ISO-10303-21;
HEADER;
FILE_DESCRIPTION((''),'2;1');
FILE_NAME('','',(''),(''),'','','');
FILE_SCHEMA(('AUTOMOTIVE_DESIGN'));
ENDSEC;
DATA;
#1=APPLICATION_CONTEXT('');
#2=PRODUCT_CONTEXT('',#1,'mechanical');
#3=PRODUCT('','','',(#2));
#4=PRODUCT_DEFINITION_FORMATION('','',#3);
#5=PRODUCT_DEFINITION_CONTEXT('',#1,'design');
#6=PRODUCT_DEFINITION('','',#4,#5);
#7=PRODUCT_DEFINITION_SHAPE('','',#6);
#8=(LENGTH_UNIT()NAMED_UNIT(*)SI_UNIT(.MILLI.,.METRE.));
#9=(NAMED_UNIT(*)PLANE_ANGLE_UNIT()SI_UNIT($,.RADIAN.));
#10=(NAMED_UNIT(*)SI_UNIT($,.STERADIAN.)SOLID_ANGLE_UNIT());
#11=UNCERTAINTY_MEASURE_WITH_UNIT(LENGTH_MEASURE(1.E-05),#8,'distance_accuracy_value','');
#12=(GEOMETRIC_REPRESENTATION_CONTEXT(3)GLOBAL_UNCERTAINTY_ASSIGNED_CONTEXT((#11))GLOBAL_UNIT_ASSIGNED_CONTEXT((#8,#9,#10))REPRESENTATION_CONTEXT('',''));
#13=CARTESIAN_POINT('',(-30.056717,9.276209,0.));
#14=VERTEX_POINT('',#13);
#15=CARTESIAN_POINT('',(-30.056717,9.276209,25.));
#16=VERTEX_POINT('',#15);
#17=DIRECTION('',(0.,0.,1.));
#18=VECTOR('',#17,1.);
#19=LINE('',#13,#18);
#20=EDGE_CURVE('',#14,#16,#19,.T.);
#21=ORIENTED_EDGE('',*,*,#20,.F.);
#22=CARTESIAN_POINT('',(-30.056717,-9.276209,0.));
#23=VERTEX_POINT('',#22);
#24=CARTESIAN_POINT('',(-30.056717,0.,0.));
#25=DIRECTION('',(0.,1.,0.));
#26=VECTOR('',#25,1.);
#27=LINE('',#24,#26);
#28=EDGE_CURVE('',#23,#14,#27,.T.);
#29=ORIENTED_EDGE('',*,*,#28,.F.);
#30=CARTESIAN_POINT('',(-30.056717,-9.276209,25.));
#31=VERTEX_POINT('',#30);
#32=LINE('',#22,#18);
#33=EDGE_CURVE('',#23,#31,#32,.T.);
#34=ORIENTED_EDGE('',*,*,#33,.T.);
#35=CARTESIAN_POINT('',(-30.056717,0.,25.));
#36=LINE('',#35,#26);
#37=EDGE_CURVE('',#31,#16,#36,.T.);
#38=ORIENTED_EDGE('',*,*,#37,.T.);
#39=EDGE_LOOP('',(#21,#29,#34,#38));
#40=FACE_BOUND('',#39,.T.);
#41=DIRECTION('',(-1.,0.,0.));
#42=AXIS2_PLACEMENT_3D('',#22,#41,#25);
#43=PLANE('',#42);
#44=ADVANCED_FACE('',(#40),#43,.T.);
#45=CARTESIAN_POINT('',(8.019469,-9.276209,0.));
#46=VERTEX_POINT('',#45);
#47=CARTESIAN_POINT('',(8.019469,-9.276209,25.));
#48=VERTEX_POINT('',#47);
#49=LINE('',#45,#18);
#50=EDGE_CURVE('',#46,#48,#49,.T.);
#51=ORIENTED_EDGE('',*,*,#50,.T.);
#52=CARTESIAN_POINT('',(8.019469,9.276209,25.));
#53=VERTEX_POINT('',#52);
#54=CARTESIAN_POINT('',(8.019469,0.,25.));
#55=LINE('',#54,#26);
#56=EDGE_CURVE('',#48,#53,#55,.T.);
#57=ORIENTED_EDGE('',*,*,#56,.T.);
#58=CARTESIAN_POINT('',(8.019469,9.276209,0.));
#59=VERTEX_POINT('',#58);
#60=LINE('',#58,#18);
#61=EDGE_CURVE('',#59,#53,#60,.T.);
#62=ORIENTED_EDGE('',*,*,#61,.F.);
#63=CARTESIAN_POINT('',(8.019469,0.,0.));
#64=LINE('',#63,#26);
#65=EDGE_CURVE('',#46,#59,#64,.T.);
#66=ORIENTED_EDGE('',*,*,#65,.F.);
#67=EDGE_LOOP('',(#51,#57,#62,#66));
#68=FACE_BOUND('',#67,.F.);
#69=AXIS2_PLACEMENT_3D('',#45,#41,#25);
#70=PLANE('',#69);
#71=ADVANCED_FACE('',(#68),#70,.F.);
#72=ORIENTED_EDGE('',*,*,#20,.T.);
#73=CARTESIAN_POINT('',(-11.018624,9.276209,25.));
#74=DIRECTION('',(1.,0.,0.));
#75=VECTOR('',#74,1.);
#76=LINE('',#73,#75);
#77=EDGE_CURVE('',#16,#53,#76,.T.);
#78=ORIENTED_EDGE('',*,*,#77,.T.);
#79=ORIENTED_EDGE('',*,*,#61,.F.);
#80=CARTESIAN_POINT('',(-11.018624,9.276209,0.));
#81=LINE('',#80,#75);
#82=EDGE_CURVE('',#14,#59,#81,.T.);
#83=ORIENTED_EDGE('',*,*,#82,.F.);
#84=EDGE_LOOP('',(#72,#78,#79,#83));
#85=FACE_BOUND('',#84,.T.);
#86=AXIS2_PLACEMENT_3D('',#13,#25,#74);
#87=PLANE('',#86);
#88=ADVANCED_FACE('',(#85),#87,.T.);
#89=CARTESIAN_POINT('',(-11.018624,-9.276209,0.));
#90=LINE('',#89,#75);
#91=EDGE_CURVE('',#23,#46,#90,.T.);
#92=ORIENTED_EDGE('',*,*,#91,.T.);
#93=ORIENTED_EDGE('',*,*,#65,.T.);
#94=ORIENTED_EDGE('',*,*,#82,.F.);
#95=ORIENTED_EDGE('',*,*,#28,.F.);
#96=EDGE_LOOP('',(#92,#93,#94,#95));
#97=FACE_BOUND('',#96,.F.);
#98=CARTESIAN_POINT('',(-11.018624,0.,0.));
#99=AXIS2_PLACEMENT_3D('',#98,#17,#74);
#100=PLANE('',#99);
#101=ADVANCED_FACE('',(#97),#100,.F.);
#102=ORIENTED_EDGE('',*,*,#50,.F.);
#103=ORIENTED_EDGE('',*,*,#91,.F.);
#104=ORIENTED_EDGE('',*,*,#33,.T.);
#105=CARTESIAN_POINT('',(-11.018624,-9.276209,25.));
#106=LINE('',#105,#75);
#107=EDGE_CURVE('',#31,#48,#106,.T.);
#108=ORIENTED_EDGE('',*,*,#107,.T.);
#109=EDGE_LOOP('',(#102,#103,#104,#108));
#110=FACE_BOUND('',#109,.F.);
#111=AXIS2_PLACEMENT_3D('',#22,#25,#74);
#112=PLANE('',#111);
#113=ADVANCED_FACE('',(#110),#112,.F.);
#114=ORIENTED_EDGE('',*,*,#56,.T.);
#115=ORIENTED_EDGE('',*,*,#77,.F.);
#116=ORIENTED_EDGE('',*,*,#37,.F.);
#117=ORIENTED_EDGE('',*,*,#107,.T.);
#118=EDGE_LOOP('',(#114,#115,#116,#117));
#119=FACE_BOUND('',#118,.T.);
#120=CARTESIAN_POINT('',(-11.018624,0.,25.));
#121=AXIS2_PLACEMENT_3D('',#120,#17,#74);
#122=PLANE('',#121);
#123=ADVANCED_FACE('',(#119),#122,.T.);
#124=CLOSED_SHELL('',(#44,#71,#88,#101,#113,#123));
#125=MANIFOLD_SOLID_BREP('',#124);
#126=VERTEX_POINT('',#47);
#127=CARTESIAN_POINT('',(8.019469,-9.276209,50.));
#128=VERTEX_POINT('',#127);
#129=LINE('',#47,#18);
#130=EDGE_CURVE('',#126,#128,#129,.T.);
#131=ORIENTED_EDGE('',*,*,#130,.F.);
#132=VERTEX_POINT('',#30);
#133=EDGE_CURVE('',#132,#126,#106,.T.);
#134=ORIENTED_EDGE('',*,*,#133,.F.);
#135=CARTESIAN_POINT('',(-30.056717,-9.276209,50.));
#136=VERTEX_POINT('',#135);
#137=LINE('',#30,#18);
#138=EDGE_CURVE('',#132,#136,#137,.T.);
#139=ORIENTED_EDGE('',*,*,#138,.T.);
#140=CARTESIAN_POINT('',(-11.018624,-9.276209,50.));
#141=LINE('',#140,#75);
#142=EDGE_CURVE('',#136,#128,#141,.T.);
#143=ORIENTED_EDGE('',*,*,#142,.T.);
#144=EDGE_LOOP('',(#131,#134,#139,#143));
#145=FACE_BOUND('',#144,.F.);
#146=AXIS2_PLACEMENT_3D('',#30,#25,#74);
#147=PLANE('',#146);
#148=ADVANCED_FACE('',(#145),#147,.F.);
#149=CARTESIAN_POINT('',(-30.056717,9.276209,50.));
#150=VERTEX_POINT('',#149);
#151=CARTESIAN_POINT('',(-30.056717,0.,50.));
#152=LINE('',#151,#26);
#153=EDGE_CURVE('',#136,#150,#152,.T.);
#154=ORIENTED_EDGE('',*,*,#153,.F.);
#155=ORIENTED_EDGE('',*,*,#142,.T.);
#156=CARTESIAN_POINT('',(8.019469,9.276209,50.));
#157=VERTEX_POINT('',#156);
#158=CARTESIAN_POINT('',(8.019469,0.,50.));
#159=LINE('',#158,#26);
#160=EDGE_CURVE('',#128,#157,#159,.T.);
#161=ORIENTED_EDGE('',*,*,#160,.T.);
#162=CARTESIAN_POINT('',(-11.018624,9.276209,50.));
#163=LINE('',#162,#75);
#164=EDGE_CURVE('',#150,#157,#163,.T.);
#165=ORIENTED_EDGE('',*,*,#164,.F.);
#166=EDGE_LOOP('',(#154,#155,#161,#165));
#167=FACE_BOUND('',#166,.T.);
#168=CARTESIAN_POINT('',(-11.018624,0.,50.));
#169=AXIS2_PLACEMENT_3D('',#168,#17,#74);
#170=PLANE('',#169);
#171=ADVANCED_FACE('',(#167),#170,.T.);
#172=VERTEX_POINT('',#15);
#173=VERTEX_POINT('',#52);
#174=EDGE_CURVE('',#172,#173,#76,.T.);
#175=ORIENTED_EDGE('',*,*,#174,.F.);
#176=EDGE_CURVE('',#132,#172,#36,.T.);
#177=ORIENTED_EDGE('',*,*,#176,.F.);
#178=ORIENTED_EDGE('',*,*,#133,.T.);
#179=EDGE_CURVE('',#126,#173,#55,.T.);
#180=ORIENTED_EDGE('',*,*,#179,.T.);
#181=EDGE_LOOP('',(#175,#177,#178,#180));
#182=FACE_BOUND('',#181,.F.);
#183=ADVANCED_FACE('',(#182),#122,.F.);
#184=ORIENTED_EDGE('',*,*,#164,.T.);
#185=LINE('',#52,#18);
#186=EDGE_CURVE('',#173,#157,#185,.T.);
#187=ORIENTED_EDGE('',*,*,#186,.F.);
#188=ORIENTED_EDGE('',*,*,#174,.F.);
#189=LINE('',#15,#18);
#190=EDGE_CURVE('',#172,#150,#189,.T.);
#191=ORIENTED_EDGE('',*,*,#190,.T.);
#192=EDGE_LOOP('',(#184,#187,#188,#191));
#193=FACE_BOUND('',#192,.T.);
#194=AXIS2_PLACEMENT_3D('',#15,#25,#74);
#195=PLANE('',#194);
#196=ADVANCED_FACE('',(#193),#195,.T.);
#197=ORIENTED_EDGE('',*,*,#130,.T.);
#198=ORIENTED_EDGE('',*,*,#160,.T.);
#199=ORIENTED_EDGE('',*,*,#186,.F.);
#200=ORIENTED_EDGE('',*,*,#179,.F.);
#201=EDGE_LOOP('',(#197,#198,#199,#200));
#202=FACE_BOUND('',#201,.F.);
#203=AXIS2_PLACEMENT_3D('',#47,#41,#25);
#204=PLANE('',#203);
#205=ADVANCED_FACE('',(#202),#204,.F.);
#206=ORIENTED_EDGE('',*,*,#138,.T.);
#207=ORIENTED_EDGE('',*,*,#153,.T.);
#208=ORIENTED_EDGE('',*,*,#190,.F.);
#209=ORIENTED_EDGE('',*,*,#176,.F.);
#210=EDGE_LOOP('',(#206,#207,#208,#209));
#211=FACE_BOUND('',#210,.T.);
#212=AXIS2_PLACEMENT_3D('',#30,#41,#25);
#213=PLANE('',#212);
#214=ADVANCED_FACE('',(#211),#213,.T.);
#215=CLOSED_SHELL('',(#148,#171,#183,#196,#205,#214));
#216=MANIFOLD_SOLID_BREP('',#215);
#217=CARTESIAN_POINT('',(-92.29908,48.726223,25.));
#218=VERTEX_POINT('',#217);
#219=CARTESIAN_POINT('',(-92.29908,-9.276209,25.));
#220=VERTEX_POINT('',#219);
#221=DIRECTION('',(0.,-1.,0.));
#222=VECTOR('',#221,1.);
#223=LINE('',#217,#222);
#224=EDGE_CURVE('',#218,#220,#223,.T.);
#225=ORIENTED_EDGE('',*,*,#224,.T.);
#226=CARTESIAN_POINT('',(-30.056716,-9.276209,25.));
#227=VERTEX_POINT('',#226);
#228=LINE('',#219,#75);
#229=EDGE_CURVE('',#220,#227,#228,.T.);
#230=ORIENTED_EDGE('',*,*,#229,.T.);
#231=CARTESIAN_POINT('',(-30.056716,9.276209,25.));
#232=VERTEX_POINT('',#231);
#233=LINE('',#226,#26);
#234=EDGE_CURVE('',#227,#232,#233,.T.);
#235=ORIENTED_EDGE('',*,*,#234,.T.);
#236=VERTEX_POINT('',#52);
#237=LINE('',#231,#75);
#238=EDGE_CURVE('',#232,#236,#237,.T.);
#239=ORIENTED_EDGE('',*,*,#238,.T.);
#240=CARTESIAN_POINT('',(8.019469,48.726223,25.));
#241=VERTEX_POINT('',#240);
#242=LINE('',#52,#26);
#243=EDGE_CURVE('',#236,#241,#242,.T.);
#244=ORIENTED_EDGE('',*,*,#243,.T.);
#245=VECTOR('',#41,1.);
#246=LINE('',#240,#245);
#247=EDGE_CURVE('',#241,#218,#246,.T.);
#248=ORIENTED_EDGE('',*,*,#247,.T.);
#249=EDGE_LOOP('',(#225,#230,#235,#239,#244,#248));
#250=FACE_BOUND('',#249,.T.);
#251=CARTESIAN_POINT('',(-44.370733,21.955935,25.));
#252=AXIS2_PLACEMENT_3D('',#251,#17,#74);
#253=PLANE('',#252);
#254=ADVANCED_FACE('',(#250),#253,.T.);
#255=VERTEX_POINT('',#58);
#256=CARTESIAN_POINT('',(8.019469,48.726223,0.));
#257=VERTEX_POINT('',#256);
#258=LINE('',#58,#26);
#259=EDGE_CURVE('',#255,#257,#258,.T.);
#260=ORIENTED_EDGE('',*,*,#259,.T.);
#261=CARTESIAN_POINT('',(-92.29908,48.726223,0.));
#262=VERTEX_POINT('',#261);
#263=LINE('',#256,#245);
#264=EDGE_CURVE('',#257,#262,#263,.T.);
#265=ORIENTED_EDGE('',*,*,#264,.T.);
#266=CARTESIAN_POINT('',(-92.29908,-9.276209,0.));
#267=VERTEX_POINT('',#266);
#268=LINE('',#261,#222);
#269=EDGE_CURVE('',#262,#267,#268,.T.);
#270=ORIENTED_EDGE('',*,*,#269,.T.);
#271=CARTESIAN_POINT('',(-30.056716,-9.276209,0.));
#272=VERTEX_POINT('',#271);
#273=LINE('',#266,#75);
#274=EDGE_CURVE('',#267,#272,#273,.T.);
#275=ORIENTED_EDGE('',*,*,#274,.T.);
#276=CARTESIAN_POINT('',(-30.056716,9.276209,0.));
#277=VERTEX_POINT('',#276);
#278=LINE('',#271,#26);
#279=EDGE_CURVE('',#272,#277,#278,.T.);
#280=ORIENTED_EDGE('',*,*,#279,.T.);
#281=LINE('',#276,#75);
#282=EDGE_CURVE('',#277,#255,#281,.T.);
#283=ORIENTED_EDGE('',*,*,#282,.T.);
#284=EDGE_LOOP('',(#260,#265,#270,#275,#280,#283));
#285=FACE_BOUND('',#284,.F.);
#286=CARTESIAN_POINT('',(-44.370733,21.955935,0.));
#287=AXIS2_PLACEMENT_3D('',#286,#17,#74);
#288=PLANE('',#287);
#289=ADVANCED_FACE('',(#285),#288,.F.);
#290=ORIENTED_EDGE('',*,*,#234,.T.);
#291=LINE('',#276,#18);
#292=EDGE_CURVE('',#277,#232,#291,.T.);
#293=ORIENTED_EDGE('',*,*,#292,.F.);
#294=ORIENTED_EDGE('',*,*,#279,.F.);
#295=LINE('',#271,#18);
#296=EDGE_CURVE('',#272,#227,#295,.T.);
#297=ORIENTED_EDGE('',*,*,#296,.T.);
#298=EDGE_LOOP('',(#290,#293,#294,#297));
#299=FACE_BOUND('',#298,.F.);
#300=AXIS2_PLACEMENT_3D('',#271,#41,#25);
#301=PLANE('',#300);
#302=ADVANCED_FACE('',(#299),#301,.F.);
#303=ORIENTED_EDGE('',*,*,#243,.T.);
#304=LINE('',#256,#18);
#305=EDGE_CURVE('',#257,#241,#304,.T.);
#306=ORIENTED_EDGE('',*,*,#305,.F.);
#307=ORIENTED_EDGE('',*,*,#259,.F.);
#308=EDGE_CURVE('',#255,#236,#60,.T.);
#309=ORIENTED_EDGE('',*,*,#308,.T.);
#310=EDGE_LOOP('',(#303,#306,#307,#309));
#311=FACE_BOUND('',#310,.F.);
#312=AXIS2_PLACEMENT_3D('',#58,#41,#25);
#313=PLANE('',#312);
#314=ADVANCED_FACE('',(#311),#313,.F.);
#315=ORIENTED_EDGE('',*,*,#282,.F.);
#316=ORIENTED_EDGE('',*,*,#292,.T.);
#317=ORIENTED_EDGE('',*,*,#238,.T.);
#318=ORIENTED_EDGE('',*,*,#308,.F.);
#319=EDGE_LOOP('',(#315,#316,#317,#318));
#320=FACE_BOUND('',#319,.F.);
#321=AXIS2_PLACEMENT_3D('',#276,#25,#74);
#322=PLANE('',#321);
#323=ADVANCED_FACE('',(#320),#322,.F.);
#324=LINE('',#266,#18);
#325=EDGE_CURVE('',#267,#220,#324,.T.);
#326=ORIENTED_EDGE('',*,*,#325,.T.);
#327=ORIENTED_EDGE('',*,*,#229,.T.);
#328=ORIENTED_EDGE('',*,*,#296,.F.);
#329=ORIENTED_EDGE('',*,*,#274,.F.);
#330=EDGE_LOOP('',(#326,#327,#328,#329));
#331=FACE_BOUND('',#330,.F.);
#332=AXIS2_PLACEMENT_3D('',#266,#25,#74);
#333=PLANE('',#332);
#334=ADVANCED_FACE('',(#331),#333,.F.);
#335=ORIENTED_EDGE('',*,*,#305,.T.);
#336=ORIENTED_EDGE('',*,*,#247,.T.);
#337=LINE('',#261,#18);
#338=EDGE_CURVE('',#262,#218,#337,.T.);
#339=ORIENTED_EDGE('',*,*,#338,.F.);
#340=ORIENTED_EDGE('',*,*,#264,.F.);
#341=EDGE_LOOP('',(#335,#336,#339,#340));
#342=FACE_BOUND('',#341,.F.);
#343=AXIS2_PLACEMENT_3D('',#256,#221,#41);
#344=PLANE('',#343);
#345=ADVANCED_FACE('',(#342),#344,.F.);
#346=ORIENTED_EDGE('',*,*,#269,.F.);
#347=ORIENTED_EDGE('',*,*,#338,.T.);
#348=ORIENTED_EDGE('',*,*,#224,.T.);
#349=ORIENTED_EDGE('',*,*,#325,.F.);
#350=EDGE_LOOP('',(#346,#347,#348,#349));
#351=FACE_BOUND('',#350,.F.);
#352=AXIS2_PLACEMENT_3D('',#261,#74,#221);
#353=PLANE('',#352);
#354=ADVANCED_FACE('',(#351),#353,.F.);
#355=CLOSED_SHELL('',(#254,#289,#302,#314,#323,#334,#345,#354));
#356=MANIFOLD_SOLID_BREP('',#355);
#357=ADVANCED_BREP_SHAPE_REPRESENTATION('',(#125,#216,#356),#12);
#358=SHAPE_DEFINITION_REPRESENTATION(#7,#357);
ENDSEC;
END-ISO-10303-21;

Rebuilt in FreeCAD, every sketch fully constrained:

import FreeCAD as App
import Part
import Sketcher
from FreeCAD import Vector


def add_polygon(sketch, points):
    """Adds a closed chain of lines whose ends are joined by coincident constraints."""
    first, n = sketch.GeometryCount, len(points)
    for a, b in zip(points, points[1:] + points[:1]):
        sketch.addGeometry(Part.LineSegment(App.Vector(*a, 0), App.Vector(*b, 0)), False)
    for i in range(n):
        sketch.addConstraint(Sketcher.Constraint("Coincident", first + i, 2, first + (i + 1) % n, 1))

doc = App.newDocument("Part")
body = doc.addObject("PartDesign::Body", "Body")

# Sketch on XY plane
sketch1 = doc.addObject("Sketcher::SketchObject", "Sketch")
body.addObject(sketch1)
sketch1.AttachmentSupport = (doc.XY_Plane, [""])
sketch1.MapMode = "FlatFace"
add_polygon(sketch1, [(-92, -9), (-30, -9), (-30, 9), (8, 9), (8, 49), (-92, 49)])  # lines 0-5
sketch1.addConstraint([
    Sketcher.Constraint("Horizontal", 0),
    Sketcher.Constraint("Vertical", 1),
    Sketcher.Constraint("Horizontal", 2),
    Sketcher.Constraint("Vertical", 3),
    Sketcher.Constraint("Horizontal", 4),
    Sketcher.Constraint("Vertical", 5),
    Sketcher.Constraint("DistanceX", 4, 2, 4, 1, 100.318549),
    Sketcher.Constraint("DistanceX", 0, 1, 0, 2, 62.242364),
    Sketcher.Constraint("DistanceY", 1, 1, 1, 2, 18.552418),
    Sketcher.Constraint("DistanceY", 3, 1, 3, 2, 39.450014),
    Sketcher.Constraint("DistanceY", 0, 2, -1, 1, 9.276209),
    Sketcher.Constraint("DistanceX", -1, 1, 2, 2, 8.019469),
])
pad1 = doc.addObject("PartDesign::Pad", "Pad")
body.addObject(pad1)
pad1.Profile = sketch1
pad1.Length = 25
body2 = doc.addObject("PartDesign::Body", "Body001")

# Sketch on XY plane
sketch2 = doc.addObject("Sketcher::SketchObject", "Sketch001")
body2.addObject(sketch2)
sketch2.AttachmentSupport = (doc.getObject("XY_Plane001"), [""])
sketch2.MapMode = "FlatFace"
add_polygon(sketch2, [(-30, 9), (-30, -9), (8, -9), (8, 9)])  # lines 0-3
sketch2.addConstraint([
    Sketcher.Constraint("Vertical", 0),
    Sketcher.Constraint("Horizontal", 1),
    Sketcher.Constraint("Vertical", 2),
    Sketcher.Constraint("Horizontal", 3),
    Sketcher.Constraint("DistanceX", 1, 1, 1, 2, 38.076185),
    Sketcher.Constraint("DistanceY", 0, 2, 0, 1, 18.552418),
    Sketcher.Constraint("DistanceY", 0, 2, -1, 1, 9.276209),
    Sketcher.Constraint("DistanceX", -1, 1, 1, 2, 8.019469),
])
pad2 = doc.addObject("PartDesign::Pad", "Pad001")
body2.addObject(pad2)
pad2.Profile = sketch2
pad2.Length = 25
body3 = doc.addObject("PartDesign::Body", "Body002")

# Sketch on XY plane
sketch3 = doc.addObject("Sketcher::SketchObject", "Sketch002")
body3.addObject(sketch3)
sketch3.AttachmentSupport = (doc.getObject("XY_Plane002"), [""])
sketch3.MapMode = "FlatFace"
sketch3.AttachmentOffset = App.Placement(Vector(0, 0, 25), App.Rotation())
add_polygon(sketch3, [(-30, 9), (-30, -9), (8, -9), (8, 9)])  # lines 0-3
sketch3.addConstraint([
    Sketcher.Constraint("Vertical", 0),
    Sketcher.Constraint("Horizontal", 1),
    Sketcher.Constraint("Vertical", 2),
    Sketcher.Constraint("Horizontal", 3),
    Sketcher.Constraint("DistanceX", 1, 1, 1, 2, 38.076186),
    Sketcher.Constraint("DistanceY", 0, 2, 0, 1, 18.552418),
    Sketcher.Constraint("DistanceY", 0, 2, -1, 1, 9.276209),
    Sketcher.Constraint("DistanceX", -1, 1, 1, 2, 8.019469),
])
pad3 = doc.addObject("PartDesign::Pad", "Pad002")
body3.addObject(pad3)
pad3.Profile = sketch3
pad3.Length = 25

doc.recompute()
